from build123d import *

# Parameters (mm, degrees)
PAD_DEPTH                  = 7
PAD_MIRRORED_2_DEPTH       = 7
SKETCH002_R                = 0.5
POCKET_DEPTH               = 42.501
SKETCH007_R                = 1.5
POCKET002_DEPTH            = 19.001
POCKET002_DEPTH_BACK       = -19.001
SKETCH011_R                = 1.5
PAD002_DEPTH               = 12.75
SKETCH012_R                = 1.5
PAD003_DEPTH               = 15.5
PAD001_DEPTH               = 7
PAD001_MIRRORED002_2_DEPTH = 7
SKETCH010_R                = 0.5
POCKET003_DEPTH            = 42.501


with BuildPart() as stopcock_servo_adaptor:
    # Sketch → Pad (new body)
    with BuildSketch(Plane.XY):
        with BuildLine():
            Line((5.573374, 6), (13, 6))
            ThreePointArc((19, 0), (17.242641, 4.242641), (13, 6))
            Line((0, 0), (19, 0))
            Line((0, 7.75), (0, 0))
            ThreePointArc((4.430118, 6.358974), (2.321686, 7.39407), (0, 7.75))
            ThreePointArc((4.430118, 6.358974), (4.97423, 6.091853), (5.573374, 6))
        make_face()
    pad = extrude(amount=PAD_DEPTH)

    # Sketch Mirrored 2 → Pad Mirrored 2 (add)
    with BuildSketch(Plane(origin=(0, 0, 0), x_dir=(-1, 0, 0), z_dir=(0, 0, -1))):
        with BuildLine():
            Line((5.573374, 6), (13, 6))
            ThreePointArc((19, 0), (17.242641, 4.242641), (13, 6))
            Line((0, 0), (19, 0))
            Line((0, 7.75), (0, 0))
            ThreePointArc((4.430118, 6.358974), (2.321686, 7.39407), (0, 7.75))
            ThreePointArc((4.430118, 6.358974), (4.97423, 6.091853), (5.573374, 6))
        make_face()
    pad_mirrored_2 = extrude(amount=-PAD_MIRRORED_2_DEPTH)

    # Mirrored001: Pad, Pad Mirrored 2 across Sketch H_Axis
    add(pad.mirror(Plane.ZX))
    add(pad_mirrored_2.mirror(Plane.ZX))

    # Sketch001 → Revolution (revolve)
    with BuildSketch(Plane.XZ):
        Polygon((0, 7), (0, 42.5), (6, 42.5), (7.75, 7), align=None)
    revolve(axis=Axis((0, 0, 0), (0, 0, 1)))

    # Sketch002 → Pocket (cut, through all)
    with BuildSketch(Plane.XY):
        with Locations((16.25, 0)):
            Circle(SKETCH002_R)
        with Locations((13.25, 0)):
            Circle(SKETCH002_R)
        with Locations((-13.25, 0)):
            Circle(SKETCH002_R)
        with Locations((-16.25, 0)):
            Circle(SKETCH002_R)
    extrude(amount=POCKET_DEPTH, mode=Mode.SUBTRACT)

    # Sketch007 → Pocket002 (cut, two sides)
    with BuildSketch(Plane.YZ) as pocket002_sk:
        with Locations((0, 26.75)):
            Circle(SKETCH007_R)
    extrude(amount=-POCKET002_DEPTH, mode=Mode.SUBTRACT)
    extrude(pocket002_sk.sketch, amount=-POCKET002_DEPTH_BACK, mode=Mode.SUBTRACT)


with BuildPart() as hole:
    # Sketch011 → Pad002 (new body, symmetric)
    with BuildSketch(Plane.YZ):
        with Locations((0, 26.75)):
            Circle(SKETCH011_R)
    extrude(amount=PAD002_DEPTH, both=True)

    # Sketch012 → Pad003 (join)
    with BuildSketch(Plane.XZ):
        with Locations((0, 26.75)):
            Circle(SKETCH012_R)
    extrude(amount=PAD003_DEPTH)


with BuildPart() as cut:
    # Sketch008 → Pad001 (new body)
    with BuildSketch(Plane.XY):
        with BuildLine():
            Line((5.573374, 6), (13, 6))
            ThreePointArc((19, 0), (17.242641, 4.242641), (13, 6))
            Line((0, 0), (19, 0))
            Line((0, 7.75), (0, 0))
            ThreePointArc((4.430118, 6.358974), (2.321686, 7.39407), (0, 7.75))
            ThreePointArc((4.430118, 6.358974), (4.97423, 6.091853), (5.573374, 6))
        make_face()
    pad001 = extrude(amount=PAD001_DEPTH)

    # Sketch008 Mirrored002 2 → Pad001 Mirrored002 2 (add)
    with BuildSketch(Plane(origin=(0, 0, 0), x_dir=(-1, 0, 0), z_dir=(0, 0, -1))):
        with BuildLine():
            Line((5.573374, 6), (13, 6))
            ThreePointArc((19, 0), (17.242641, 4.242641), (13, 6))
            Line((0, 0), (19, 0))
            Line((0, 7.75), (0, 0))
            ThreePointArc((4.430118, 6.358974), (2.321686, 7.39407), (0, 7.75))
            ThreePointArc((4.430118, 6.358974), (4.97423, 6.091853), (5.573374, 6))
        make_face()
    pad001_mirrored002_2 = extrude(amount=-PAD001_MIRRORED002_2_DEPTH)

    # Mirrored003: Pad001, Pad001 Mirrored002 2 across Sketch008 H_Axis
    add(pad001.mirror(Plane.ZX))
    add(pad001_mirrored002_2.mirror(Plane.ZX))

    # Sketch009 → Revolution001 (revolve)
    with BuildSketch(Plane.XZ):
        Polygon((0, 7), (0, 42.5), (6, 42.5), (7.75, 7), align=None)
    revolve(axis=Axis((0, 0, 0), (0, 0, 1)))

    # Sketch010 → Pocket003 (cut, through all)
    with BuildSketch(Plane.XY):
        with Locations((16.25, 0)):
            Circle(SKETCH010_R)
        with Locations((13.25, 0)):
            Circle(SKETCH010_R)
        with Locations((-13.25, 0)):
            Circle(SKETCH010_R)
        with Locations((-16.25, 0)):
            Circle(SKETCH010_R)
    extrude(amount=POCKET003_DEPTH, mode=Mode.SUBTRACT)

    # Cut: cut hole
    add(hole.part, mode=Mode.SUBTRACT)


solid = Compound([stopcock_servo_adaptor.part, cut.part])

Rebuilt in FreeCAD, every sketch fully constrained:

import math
import FreeCAD as App
import Part
import Sketcher

V = App.Vector

doc = App.newDocument("Part")
body = doc.addObject("PartDesign::Body", "Body")

# Sketch on XY plane
sketch1 = body.newObject("Sketcher::SketchObject", "Sketch")
sketch1.AttachmentSupport = (doc.getObject("XY_Plane"), [""])
sketch1.MapMode = "FlatFace"
sketch1.addGeometry([
    Part.LineSegment(V(13, 6, 0), V(5.6, 6, 0)),  # 0
    Part.ArcOfCircle(Part.Circle(V(5.6, 8, 0), V(0, 0, 1), 2), math.radians(-125), math.radians(-90)),  # 1
    Part.ArcOfCircle(Part.Circle(V(0, 0, 0), V(0, 0, 1), 7.8), math.radians(55), math.radians(90)),  # 2
    Part.LineSegment(V(0, 7.8, 0), V(0, 0, 0)),  # 3
    Part.LineSegment(V(0, 0, 0), V(19, 0, 0)),  # 4
    Part.ArcOfCircle(Part.Circle(V(13, 0, 0), V(0, 0, 1), 6), math.radians(0), math.radians(90)),  # 5
], False)
sketch1.addConstraint([
    Sketcher.Constraint("Tangent", 0, 2, 1, 2),
    Sketcher.Constraint("Tangent", 1, 1, 2, 1),
    Sketcher.Constraint("Coincident", 2, 2, 3, 1),
    Sketcher.Constraint("Coincident", 3, 2, 4, 1),
    Sketcher.Constraint("Coincident", 4, 2, 5, 1),
    Sketcher.Constraint("Tangent", 5, 2, 0, 1),
    Sketcher.Constraint("Horizontal", 0),
    Sketcher.Constraint("Vertical", 3),
    Sketcher.Constraint("Horizontal", 4),
    Sketcher.Constraint("Coincident", 2, 3, -1, 1),
    Sketcher.Constraint("Coincident", 3, 2, -1, 1),
    Sketcher.Constraint("PointOnObject", 5, 3, -1),
    Sketcher.Constraint("Radius", 5, 5.999999),
    Sketcher.Constraint("DistanceX", 4, 1, 4, 2, 19.0),
    Sketcher.Constraint("Radius", 2, 7.750001),
    Sketcher.Constraint("Radius", 1, 2.000009),
])
pad1 = body.newObject("PartDesign::Pad", "Pad")
pad1.Profile = sketch1
pad1.Length = 7

# Sketch on XY plane
sketch2 = body.newObject("Sketcher::SketchObject", "Sketch001")
sketch2.AttachmentSupport = (doc.getObject("XY_Plane"), [""])
sketch2.MapMode = "FlatFace"
sketch2.addGeometry([
    Part.LineSegment(V(-13, 6, 0), V(-5.6, 6, 0)),  # 0
    Part.ArcOfCircle(Part.Circle(V(-5.6, 8, 0), V(0, 0, 1), 2), math.radians(-90), math.radians(-55)),  # 1
    Part.ArcOfCircle(Part.Circle(V(0, 0, 0), V(0, 0, 1), 7.8), math.radians(90), math.radians(125)),  # 2
    Part.LineSegment(V(0, 7.8, 0), V(0, 0, 0)),  # 3
    Part.LineSegment(V(0, 0, 0), V(-19, 0, 0)),  # 4
    Part.ArcOfCircle(Part.Circle(V(-13, 0, 0), V(0, 0, 1), 6), math.radians(90), math.radians(180)),  # 5
], False)
sketch2.addConstraint([
    Sketcher.Constraint("Tangent", 0, 2, 1, 1),
    Sketcher.Constraint("Tangent", 1, 2, 2, 2),
    Sketcher.Constraint("Coincident", 2, 1, 3, 1),
    Sketcher.Constraint("Coincident", 3, 2, 4, 1),
    Sketcher.Constraint("Coincident", 4, 2, 5, 2),
    Sketcher.Constraint("Tangent", 5, 1, 0, 1),
    Sketcher.Constraint("Horizontal", 0),
    Sketcher.Constraint("Vertical", 3),
    Sketcher.Constraint("Horizontal", 4),
    Sketcher.Constraint("Coincident", 2, 3, -1, 1),
    Sketcher.Constraint("Coincident", 3, 2, -1, 1),
    Sketcher.Constraint("PointOnObject", 5, 3, -1),
    Sketcher.Constraint("Radius", 5, 5.999999),
    Sketcher.Constraint("DistanceX", 4, 2, 4, 1, 19.0),
    Sketcher.Constraint("Radius", 2, 7.750001),
    Sketcher.Constraint("Radius", 1, 2.000009),
])
pad2 = body.newObject("PartDesign::Pad", "Pad001")
pad2.Profile = sketch2
pad2.Length = 7
doc.recompute()

mirrored = body.newObject("PartDesign::Mirrored", "Mirrored")
mirrored.Originals = [pad1, pad2]
mirrored.MirrorPlane = (doc.getObject("XZ_Plane"), [""])
body.Tip = mirrored

# Sketch on XZ plane
sketch3 = body.newObject("Sketcher::SketchObject", "Sketch002")
sketch3.AttachmentSupport = (doc.getObject("XZ_Plane"), [""])
sketch3.MapMode = "FlatFace"
sketch3.addGeometry([
    Part.LineSegment(V(0, 42, 0), V(0, 7, 0)),
    Part.LineSegment(V(0, 7, 0), V(8, 7, 0)),
    Part.LineSegment(V(8, 7, 0), V(6, 42, 0)),
    Part.LineSegment(V(6, 42, 0), V(0, 42, 0)),
], False)
sketch3.addConstraint([
    Sketcher.Constraint("Coincident", 0, 2, 1, 1),
    Sketcher.Constraint("Coincident", 1, 2, 2, 1),
    Sketcher.Constraint("Coincident", 2, 2, 3, 1),
    Sketcher.Constraint("Coincident", 3, 2, 0, 1),
    Sketcher.Constraint("Vertical", 0),
    Sketcher.Constraint("Horizontal", 1),
    Sketcher.Constraint("Horizontal", 3),
    Sketcher.Constraint("PointOnObject", 0, 2, -2),
    Sketcher.Constraint("DistanceX", 3, 2, 3, 1, 6.0),
    Sketcher.Constraint("DistanceY", 0, 2, 0, 1, 35.5),
    Sketcher.Constraint("DistanceY", -1, 1, 0, 2, 7.0),
    Sketcher.Constraint("DistanceX", 1, 1, 1, 2, 7.75),
])
revolution = body.newObject("PartDesign::Revolution", "Revolution")
revolution.Profile = sketch3
revolution.ReferenceAxis = (sketch3, ["V_Axis"])
revolution.Angle = 360

# Sketch on XY plane
sketch4 = body.newObject("Sketcher::SketchObject", "Sketch003")
sketch4.AttachmentSupport = (doc.getObject("XY_Plane"), [""])
sketch4.MapMode = "FlatFace"
sketch4.addGeometry([
    Part.Circle(V(16.2, 0, 0), V(0, 0, 1), 0.5),
    Part.Circle(V(13.2, 0, 0), V(0, 0, 1), 0.5),
    Part.Circle(V(-13.2, 0, 0), V(0, 0, 1), 0.5),
    Part.Circle(V(-16.2, 0, 0), V(0, 0, 1), 0.5),
], False)
sketch4.addConstraint([
    Sketcher.Constraint("Equal", 0, 1),
    Sketcher.Constraint("Equal", 1, 2),
    Sketcher.Constraint("Equal", 2, 3),
    Sketcher.Constraint("Symmetric", 1, 3, 2, 3, -1, 1),
    Sketcher.Constraint("Symmetric", 0, 3, 3, 3, -1, 1),
    Sketcher.Constraint("PointOnObject", 0, 3, -1),
    Sketcher.Constraint("PointOnObject", 1, 3, -1),
    Sketcher.Constraint("Diameter", 0, 1.0),
    Sketcher.Constraint("DistanceX", 1, 3, 0, 3, 3.0),
    Sketcher.Constraint("DistanceX", 2, 3, 1, 3, 26.5),
])
pocket1 = body.newObject("PartDesign::Pocket", "Pocket")
pocket1.Profile = sketch4
pocket1.Type = "ThroughAll"
pocket1.Reversed = True

# Sketch on YZ plane
sketch5 = body.newObject("Sketcher::SketchObject", "Sketch004")
sketch5.AttachmentSupport = (doc.getObject("YZ_Plane"), [""])
sketch5.MapMode = "FlatFace"
sketch5.addGeometry(Part.Circle(V(0, 26.8, 0), V(0, 0, 1), 1.5), False)
sketch5.addConstraint([
    Sketcher.Constraint("PointOnObject", 0, 3, -2),
    Sketcher.Constraint("Diameter", 0, 3.0),
    Sketcher.Constraint("DistanceY", -1, 1, 0, 3, 26.75),
])
pocket2 = body.newObject("PartDesign::Pocket", "Pocket001")
pocket2.Profile = sketch5
pocket2.Type = "ThroughAll"
pocket2.Midplane = True
body2 = doc.addObject("PartDesign::Body", "Body001")

# Sketch on YZ plane
sketch6 = body2.newObject("Sketcher::SketchObject", "Sketch005")
sketch6.AttachmentSupport = (doc.getObject("YZ_Plane001"), [""])
sketch6.MapMode = "FlatFace"
sketch6.addGeometry(Part.Circle(V(0, 26.8, 0), V(0, 0, 1), 1.5), False)
sketch6.addConstraint([
    Sketcher.Constraint("PointOnObject", 0, 3, -2),
    Sketcher.Constraint("Diameter", 0, 3.0),
    Sketcher.Constraint("DistanceY", -1, 1, 0, 3, 26.75),
])
pad3 = body2.newObject("PartDesign::Pad", "Pad002")
pad3.Profile = sketch6
pad3.Length = 25.5
pad3.Midplane = True

# Sketch on XZ plane
sketch7 = body2.newObject("Sketcher::SketchObject", "Sketch006")
sketch7.AttachmentSupport = (doc.getObject("XZ_Plane001"), [""])
sketch7.MapMode = "FlatFace"
sketch7.addGeometry(Part.Circle(V(0, 26.8, 0), V(0, 0, 1), 1.5), False)
sketch7.addConstraint([
    Sketcher.Constraint("PointOnObject", 0, 3, -2),
    Sketcher.Constraint("Diameter", 0, 3.0),
    Sketcher.Constraint("DistanceY", -1, 1, 0, 3, 26.75),
])
pad4 = body2.newObject("PartDesign::Pad", "Pad003")
pad4.Profile = sketch7
pad4.Length = 15.5
body3 = doc.addObject("PartDesign::Body", "Body002")

# Sketch on XY plane
sketch8 = body3.newObject("Sketcher::SketchObject", "Sketch007")
sketch8.AttachmentSupport = (doc.getObject("XY_Plane002"), [""])
sketch8.MapMode = "FlatFace"
sketch8.addGeometry([
    Part.LineSegment(V(13, 6, 0), V(5.6, 6, 0)),  # 0
    Part.ArcOfCircle(Part.Circle(V(5.6, 8, 0), V(0, 0, 1), 2), math.radians(-125), math.radians(-90)),  # 1
    Part.ArcOfCircle(Part.Circle(V(0, 0, 0), V(0, 0, 1), 7.8), math.radians(55), math.radians(90)),  # 2
    Part.LineSegment(V(0, 7.8, 0), V(0, 0, 0)),  # 3
    Part.LineSegment(V(0, 0, 0), V(19, 0, 0)),  # 4
    Part.ArcOfCircle(Part.Circle(V(13, 0, 0), V(0, 0, 1), 6), math.radians(0), math.radians(90)),  # 5
], False)
sketch8.addConstraint([
    Sketcher.Constraint("Tangent", 0, 2, 1, 2),
    Sketcher.Constraint("Tangent", 1, 1, 2, 1),
    Sketcher.Constraint("Coincident", 2, 2, 3, 1),
    Sketcher.Constraint("Coincident", 3, 2, 4, 1),
    Sketcher.Constraint("Coincident", 4, 2, 5, 1),
    Sketcher.Constraint("Tangent", 5, 2, 0, 1),
    Sketcher.Constraint("Horizontal", 0),
    Sketcher.Constraint("Vertical", 3),
    Sketcher.Constraint("Horizontal", 4),
    Sketcher.Constraint("Coincident", 2, 3, -1, 1),
    Sketcher.Constraint("Coincident", 3, 2, -1, 1),
    Sketcher.Constraint("PointOnObject", 5, 3, -1),
    Sketcher.Constraint("Radius", 5, 5.999999),
    Sketcher.Constraint("DistanceX", 4, 1, 4, 2, 19.0),
    Sketcher.Constraint("Radius", 2, 7.750001),
    Sketcher.Constraint("Radius", 1, 2.000009),
])
pad5 = body3.newObject("PartDesign::Pad", "Pad004")
pad5.Profile = sketch8
pad5.Length = 7

# Sketch on XY plane
sketch9 = body3.newObject("Sketcher::SketchObject", "Sketch008")
sketch9.AttachmentSupport = (doc.getObject("XY_Plane002"), [""])
sketch9.MapMode = "FlatFace"
sketch9.addGeometry([
    Part.LineSegment(V(-13, 6, 0), V(-5.6, 6, 0)),  # 0
    Part.ArcOfCircle(Part.Circle(V(-5.6, 8, 0), V(0, 0, 1), 2), math.radians(-90), math.radians(-55)),  # 1
    Part.ArcOfCircle(Part.Circle(V(0, 0, 0), V(0, 0, 1), 7.8), math.radians(90), math.radians(125)),  # 2
    Part.LineSegment(V(0, 7.8, 0), V(0, 0, 0)),  # 3
    Part.LineSegment(V(0, 0, 0), V(-19, 0, 0)),  # 4
    Part.ArcOfCircle(Part.Circle(V(-13, 0, 0), V(0, 0, 1), 6), math.radians(90), math.radians(180)),  # 5
], False)
sketch9.addConstraint([
    Sketcher.Constraint("Tangent", 0, 2, 1, 1),
    Sketcher.Constraint("Tangent", 1, 2, 2, 2),
    Sketcher.Constraint("Coincident", 2, 1, 3, 1),
    Sketcher.Constraint("Coincident", 3, 2, 4, 1),
    Sketcher.Constraint("Coincident", 4, 2, 5, 2),
    Sketcher.Constraint("Tangent", 5, 1, 0, 1),
    Sketcher.Constraint("Horizontal", 0),
    Sketcher.Constraint("Vertical", 3),
    Sketcher.Constraint("Horizontal", 4),
    Sketcher.Constraint("Coincident", 2, 3, -1, 1),
    Sketcher.Constraint("Coincident", 3, 2, -1, 1),
    Sketcher.Constraint("PointOnObject", 5, 3, -1),
    Sketcher.Constraint("Radius", 5, 5.999999),
    Sketcher.Constraint("DistanceX", 4, 2, 4, 1, 19.0),
    Sketcher.Constraint("Radius", 2, 7.750001),
    Sketcher.Constraint("Radius", 1, 2.000009),
])
pad6 = body3.newObject("PartDesign::Pad", "Pad005")
pad6.Profile = sketch9
pad6.Length = 7
doc.recompute()

mirrored2 = body3.newObject("PartDesign::Mirrored", "Mirrored001")
mirrored2.Originals = [pad5, pad6]
mirrored2.MirrorPlane = (doc.getObject("XZ_Plane002"), [""])
body3.Tip = mirrored2

# Sketch on XZ plane
sketch10 = body3.newObject("Sketcher::SketchObject", "Sketch009")
sketch10.AttachmentSupport = (doc.getObject("XZ_Plane002"), [""])
sketch10.MapMode = "FlatFace"
sketch10.addGeometry([
    Part.LineSegment(V(0, 42, 0), V(0, 7, 0)),
    Part.LineSegment(V(0, 7, 0), V(8, 7, 0)),
    Part.LineSegment(V(8, 7, 0), V(6, 42, 0)),
    Part.LineSegment(V(6, 42, 0), V(0, 42, 0)),
], False)
sketch10.addConstraint([
    Sketcher.Constraint("Coincident", 0, 2, 1, 1),
    Sketcher.Constraint("Coincident", 1, 2, 2, 1),
    Sketcher.Constraint("Coincident", 2, 2, 3, 1),
    Sketcher.Constraint("Coincident", 3, 2, 0, 1),
    Sketcher.Constraint("Vertical", 0),
    Sketcher.Constraint("Horizontal", 1),
    Sketcher.Constraint("Horizontal", 3),
    Sketcher.Constraint("PointOnObject", 0, 2, -2),
    Sketcher.Constraint("DistanceX", 3, 2, 3, 1, 6.0),
    Sketcher.Constraint("DistanceY", 0, 2, 0, 1, 35.5),
    Sketcher.Constraint("DistanceY", -1, 1, 0, 2, 7.0),
    Sketcher.Constraint("DistanceX", 1, 1, 1, 2, 7.75),
])
revolution2 = body3.newObject("PartDesign::Revolution", "Revolution001")
revolution2.Profile = sketch10
revolution2.ReferenceAxis = (sketch10, ["V_Axis"])
revolution2.Angle = 360

# Sketch on XY plane
sketch11 = body3.newObject("Sketcher::SketchObject", "Sketch010")
sketch11.AttachmentSupport = (doc.getObject("XY_Plane002"), [""])
sketch11.MapMode = "FlatFace"
sketch11.addGeometry([
    Part.Circle(V(16.2, 0, 0), V(0, 0, 1), 0.5),
    Part.Circle(V(13.2, 0, 0), V(0, 0, 1), 0.5),
    Part.Circle(V(-13.2, 0, 0), V(0, 0, 1), 0.5),
    Part.Circle(V(-16.2, 0, 0), V(0, 0, 1), 0.5),
], False)
sketch11.addConstraint([
    Sketcher.Constraint("Equal", 0, 1),
    Sketcher.Constraint("Equal", 1, 2),
    Sketcher.Constraint("Equal", 2, 3),
    Sketcher.Constraint("Symmetric", 1, 3, 2, 3, -1, 1),
    Sketcher.Constraint("Symmetric", 0, 3, 3, 3, -1, 1),
    Sketcher.Constraint("PointOnObject", 0, 3, -1),
    Sketcher.Constraint("PointOnObject", 1, 3, -1),
    Sketcher.Constraint("Diameter", 0, 1.0),
    Sketcher.Constraint("DistanceX", 1, 3, 0, 3, 3.0),
    Sketcher.Constraint("DistanceX", 2, 3, 1, 3, 26.5),
])
pocket3 = body3.newObject("PartDesign::Pocket", "Pocket002")
pocket3.Profile = sketch11
pocket3.Type = "ThroughAll"
pocket3.Reversed = True
doc.recompute()

boolean = body3.newObject("PartDesign::Boolean", "Boolean")
boolean.Type = "Cut"
boolean.addObjects([body2])

doc.recompute()
